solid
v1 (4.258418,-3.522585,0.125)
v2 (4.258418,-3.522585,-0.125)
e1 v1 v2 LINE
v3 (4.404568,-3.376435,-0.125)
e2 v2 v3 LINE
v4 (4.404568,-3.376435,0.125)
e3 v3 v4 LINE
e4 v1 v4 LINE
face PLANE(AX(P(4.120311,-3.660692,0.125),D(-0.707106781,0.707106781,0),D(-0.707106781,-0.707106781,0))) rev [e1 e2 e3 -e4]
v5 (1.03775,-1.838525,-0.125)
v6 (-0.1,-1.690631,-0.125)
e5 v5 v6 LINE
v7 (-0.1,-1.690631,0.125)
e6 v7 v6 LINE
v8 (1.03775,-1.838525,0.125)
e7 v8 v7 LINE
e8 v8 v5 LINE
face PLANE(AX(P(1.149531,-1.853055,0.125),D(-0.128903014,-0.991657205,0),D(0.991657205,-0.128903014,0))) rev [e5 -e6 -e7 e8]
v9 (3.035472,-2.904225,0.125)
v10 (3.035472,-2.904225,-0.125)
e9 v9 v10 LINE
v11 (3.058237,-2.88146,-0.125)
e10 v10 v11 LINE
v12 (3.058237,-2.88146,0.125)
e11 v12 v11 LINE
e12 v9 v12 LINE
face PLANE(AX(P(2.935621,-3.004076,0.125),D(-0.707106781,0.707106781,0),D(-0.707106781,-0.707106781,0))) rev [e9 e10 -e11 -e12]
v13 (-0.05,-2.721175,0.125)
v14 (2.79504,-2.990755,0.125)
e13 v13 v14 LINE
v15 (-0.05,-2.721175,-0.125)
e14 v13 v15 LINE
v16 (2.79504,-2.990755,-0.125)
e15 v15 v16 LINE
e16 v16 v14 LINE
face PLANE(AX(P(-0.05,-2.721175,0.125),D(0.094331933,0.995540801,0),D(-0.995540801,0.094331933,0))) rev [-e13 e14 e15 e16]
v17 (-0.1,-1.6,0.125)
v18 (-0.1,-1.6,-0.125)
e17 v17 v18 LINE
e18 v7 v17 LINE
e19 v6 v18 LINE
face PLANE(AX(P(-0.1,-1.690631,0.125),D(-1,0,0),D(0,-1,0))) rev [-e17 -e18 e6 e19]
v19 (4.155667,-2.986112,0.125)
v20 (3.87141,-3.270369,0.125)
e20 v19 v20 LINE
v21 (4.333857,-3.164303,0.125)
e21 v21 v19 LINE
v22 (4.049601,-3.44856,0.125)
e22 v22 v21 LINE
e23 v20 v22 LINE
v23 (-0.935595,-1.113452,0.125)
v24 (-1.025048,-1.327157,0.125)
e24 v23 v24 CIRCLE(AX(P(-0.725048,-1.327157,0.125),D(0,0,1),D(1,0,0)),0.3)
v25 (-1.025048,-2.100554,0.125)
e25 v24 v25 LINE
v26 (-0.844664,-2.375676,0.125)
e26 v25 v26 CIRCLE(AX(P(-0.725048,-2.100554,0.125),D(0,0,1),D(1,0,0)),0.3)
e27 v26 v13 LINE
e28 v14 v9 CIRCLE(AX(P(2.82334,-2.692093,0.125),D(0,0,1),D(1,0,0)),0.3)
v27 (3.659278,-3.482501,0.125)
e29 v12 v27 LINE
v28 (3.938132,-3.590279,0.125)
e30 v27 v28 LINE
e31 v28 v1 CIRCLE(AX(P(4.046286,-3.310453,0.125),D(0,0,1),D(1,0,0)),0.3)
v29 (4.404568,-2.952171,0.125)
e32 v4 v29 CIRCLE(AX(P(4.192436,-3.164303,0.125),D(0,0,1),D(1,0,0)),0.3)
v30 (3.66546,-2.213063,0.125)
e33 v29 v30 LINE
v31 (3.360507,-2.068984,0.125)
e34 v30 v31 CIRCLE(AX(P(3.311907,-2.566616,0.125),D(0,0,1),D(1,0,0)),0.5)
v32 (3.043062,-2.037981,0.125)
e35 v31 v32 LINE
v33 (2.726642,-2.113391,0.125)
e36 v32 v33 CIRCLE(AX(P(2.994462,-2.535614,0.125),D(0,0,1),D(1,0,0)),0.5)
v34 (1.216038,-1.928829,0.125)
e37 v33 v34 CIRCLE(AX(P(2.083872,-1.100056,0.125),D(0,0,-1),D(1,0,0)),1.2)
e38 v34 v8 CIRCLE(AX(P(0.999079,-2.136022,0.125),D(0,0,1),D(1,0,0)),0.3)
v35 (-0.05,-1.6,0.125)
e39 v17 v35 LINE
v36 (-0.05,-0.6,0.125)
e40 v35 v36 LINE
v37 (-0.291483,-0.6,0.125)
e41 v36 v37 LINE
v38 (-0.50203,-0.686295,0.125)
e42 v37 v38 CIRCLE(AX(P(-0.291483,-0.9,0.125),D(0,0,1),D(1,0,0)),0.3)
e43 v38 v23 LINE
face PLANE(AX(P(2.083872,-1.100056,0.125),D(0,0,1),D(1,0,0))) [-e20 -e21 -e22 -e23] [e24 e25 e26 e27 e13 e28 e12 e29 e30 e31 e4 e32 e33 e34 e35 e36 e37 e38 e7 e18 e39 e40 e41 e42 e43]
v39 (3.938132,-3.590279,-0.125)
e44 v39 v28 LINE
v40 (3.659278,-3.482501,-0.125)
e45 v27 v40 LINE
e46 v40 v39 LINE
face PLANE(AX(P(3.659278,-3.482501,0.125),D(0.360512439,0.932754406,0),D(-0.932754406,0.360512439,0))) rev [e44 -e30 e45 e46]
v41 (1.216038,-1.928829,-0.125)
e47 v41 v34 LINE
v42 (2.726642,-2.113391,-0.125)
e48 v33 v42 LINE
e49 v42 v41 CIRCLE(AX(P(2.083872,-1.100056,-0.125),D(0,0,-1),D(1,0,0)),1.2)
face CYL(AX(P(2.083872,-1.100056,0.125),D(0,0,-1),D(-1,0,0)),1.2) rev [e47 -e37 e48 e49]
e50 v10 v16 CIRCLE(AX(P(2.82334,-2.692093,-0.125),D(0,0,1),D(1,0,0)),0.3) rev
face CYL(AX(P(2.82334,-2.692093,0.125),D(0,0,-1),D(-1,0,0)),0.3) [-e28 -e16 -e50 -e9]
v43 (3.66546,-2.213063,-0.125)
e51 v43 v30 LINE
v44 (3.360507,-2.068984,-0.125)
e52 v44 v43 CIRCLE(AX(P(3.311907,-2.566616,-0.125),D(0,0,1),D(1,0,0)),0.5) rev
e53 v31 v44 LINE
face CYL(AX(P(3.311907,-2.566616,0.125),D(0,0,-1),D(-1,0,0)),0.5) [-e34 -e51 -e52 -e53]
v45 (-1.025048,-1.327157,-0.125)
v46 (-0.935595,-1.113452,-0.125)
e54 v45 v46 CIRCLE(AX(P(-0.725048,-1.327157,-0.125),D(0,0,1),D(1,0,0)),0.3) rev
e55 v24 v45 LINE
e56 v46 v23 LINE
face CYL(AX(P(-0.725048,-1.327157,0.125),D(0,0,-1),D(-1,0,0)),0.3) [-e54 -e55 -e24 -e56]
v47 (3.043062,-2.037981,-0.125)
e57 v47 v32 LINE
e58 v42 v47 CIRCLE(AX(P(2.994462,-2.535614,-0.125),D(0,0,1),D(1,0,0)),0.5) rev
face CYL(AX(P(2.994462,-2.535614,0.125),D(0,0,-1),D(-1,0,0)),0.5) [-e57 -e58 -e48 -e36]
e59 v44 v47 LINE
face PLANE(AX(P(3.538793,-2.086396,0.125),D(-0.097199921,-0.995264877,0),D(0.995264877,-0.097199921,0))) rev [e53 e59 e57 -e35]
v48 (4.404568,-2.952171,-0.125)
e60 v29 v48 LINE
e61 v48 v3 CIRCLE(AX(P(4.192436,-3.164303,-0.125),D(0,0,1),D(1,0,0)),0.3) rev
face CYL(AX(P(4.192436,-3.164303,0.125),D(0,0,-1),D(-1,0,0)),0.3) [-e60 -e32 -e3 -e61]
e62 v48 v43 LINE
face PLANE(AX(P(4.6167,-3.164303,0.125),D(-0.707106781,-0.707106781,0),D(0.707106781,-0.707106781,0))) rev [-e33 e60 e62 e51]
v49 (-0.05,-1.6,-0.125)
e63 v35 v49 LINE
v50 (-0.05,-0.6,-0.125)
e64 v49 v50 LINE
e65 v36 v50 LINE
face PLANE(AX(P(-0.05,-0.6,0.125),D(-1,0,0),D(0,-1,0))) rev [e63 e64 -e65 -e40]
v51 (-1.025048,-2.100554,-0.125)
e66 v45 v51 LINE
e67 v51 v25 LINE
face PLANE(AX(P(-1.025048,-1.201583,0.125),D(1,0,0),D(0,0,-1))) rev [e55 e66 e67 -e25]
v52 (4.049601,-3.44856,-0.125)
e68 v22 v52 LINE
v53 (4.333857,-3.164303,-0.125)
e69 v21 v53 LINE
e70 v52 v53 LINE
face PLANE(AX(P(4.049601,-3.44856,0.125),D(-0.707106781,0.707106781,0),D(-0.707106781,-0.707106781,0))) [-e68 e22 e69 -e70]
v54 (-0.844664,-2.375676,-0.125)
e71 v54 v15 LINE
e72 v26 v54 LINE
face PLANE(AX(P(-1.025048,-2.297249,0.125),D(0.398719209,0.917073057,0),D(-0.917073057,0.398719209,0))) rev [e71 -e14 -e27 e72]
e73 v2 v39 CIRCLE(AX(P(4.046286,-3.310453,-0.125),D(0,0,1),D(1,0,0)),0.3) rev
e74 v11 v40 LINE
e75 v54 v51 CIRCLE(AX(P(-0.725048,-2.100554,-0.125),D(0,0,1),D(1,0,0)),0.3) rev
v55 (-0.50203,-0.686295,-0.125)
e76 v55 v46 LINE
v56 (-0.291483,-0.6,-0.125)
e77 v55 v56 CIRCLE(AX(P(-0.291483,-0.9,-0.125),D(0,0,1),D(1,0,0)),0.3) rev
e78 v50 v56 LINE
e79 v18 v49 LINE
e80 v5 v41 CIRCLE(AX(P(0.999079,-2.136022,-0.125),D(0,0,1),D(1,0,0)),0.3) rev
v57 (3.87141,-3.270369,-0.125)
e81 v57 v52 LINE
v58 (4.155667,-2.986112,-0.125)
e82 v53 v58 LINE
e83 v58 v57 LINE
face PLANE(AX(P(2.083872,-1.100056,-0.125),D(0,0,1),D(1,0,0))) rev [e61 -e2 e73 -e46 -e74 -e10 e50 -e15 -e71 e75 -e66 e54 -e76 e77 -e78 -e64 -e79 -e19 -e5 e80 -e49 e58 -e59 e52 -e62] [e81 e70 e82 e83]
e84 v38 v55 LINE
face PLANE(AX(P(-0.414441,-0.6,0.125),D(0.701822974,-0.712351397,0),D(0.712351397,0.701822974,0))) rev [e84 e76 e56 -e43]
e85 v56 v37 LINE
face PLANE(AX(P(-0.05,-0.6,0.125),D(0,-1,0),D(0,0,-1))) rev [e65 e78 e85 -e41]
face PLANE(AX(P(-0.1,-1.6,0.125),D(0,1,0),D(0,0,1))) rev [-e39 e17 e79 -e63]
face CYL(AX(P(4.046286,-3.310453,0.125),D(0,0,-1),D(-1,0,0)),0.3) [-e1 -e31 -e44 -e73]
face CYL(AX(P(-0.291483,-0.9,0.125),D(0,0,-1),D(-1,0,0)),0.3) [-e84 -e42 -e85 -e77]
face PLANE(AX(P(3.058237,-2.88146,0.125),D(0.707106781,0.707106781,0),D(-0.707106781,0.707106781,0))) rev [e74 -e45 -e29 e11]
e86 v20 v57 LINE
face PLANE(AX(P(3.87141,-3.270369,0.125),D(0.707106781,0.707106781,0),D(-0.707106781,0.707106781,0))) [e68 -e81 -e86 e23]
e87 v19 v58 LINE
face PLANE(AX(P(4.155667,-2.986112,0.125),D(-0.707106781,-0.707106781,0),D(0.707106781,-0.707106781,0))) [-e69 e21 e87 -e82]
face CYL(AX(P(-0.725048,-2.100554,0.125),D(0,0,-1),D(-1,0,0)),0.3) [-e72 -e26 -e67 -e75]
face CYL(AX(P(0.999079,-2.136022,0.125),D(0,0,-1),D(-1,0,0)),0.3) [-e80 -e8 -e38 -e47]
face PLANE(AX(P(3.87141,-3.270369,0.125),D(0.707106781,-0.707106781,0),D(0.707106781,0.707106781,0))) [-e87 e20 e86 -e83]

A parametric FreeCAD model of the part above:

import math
import FreeCAD as App
import Part
import Sketcher
from FreeCAD import Vector
Q = App.Units.Quantity


def edges_at(feature, points):
    """Names of the edges that pass closest to the given points."""
    edges = feature.Shape.Edges
    near = lambda p: min(range(len(edges)), key=lambda i: edges[i].distToShape(Part.Vertex(*p))[0])
    return sorted({f"Edge{near(p) + 1}" for p in points})

doc = App.newDocument("Part")
body = doc.addObject("PartDesign::Body", "Body")

sketch1 = doc.addObject("Sketcher::SketchObject", "Sketch")
body.addObject(sketch1)
sketch1.AttachmentSupport = (doc.XY_Plane, [""])
sketch1.MapMode = "FlatFace"
sketch1.addGeometry(Part.LineSegment(Vector(-0.05, -1.6, 0), Vector(-0.05, -0.6, 0)), False)
sketch1.addGeometry(Part.LineSegment(Vector(-0.05, -0.6, 0), Vector(-0.41, -0.6, 0)), False)
sketch1.addGeometry(Part.LineSegment(Vector(-0.41, -0.6, 0), Vector(-1.03, -1.2, 0)), False)
sketch1.addGeometry(Part.LineSegment(Vector(-1.03, -1.2, 0), Vector(-1.03, -2.3, 0)), False)
sketch1.addGeometry(Part.LineSegment(Vector(-1.03, -2.3, 0), Vector(-0.05, -2.72, 0)), False)
sketch1.addGeometry(Part.LineSegment(Vector(-0.05, -2.72, 0), Vector(2.94, -3, 0)), False)
sketch1.addGeometry(Part.LineSegment(Vector(2.94, -3, 0), Vector(3.06, -2.88, 0)), False)
sketch1.addGeometry(Part.LineSegment(Vector(3.06, -2.88, 0), Vector(3.66, -3.48, 0)), False)
sketch1.addGeometry(Part.LineSegment(Vector(3.66, -3.48, 0), Vector(4.12, -3.66, 0)), False)
sketch1.addGeometry(Part.LineSegment(Vector(4.12, -3.66, 0), Vector(4.62, -3.16, 0)), False)
sketch1.addGeometry(Part.LineSegment(Vector(4.62, -3.16, 0), Vector(3.54, -2.09, 0)), False)
sketch1.addGeometry(Part.LineSegment(Vector(3.54, -2.09, 0), Vector(2.85, -2.02, 0)), False)
sketch1.addGeometry(Part.ArcOfCircle(Part.Circle(Vector(2.08, -1.1, 0), Vector(0, 0, 1), 1.2), math.radians(-141), math.radians(-50)), False)
sketch1.addGeometry(Part.LineSegment(Vector(1.15, -1.85, 0), Vector(-0.1, -1.69, 0)), False)
sketch1.addGeometry(Part.LineSegment(Vector(-0.1, -1.69, 0), Vector(-0.1, -1.6, 0)), False)
sketch1.addGeometry(Part.LineSegment(Vector(-0.1, -1.6, 0), Vector(-0.05, -1.6, 0)), False)
sketch1.addGeometry(Part.LineSegment(Vector(3.87, -3.27, 0), Vector(4.16, -2.99, 0)), False)
sketch1.addGeometry(Part.LineSegment(Vector(4.16, -2.99, 0), Vector(4.33, -3.16, 0)), False)
sketch1.addGeometry(Part.LineSegment(Vector(4.33, -3.16, 0), Vector(4.05, -3.45, 0)), False)
sketch1.addGeometry(Part.LineSegment(Vector(4.05, -3.45, 0), Vector(3.87, -3.27, 0)), False)
sketch1.addConstraint(Sketcher.Constraint("Coincident", 0, 2, 1, 1))
sketch1.addConstraint(Sketcher.Constraint("Coincident", 1, 2, 2, 1))
sketch1.addConstraint(Sketcher.Constraint("Coincident", 2, 2, 3, 1))
sketch1.addConstraint(Sketcher.Constraint("Coincident", 3, 2, 4, 1))
sketch1.addConstraint(Sketcher.Constraint("Coincident", 4, 2, 5, 1))
sketch1.addConstraint(Sketcher.Constraint("Coincident", 5, 2, 6, 1))
sketch1.addConstraint(Sketcher.Constraint("Coincident", 6, 2, 7, 1))
sketch1.addConstraint(Sketcher.Constraint("Coincident", 7, 2, 8, 1))
sketch1.addConstraint(Sketcher.Constraint("Coincident", 8, 2, 9, 1))
sketch1.addConstraint(Sketcher.Constraint("Coincident", 9, 2, 10, 1))
sketch1.addConstraint(Sketcher.Constraint("Coincident", 10, 2, 11, 1))
sketch1.addConstraint(Sketcher.Constraint("Coincident", 11, 2, 12, 2))
sketch1.addConstraint(Sketcher.Constraint("Coincident", 12, 1, 13, 1))
sketch1.addConstraint(Sketcher.Constraint("Coincident", 13, 2, 14, 1))
sketch1.addConstraint(Sketcher.Constraint("Coincident", 14, 2, 15, 1))
sketch1.addConstraint(Sketcher.Constraint("Coincident", 15, 2, 0, 1))
sketch1.addConstraint(Sketcher.Constraint("Coincident", 16, 2, 17, 1))
sketch1.addConstraint(Sketcher.Constraint("Coincident", 17, 2, 18, 1))
sketch1.addConstraint(Sketcher.Constraint("Coincident", 18, 2, 19, 1))
sketch1.addConstraint(Sketcher.Constraint("Coincident", 19, 2, 16, 1))
sketch1.addConstraint(Sketcher.Constraint("Vertical", 0))
sketch1.addConstraint(Sketcher.Constraint("Horizontal", 1))
sketch1.addConstraint(Sketcher.Constraint("Vertical", 3))
sketch1.addConstraint(Sketcher.Constraint("Vertical", 14))
sketch1.addConstraint(Sketcher.Constraint("Horizontal", 15))
sketch1.addConstraint(Sketcher.Constraint("Perpendicular", 6, 7))
sketch1.addConstraint(Sketcher.Constraint("Perpendicular", 7, 9))
sketch1.addConstraint(Sketcher.Constraint("Perpendicular", 9, 10))
sketch1.addConstraint(Sketcher.Constraint("Perpendicular", 10, 16))
sketch1.addConstraint(Sketcher.Constraint("Perpendicular", 16, 17))
sketch1.addConstraint(Sketcher.Constraint("Perpendicular", 17, 18))
sketch1.addConstraint(Sketcher.Constraint("Perpendicular", 18, 19))
sketch1.addConstraint(Sketcher.Constraint("Horizontal", 9, 2, 17, 2))
sketch1.addConstraint(Sketcher.Constraint("Vertical", 0, 2, 4, 2))
sketch1.addConstraint(Sketcher.Constraint("Radius", 12, Q("1.2 mm")))
sketch1.addConstraint(Sketcher.Constraint("DistanceY", 0, 1, 0, 2, Q("1 mm")))
sketch1.addConstraint(Sketcher.Constraint("Angle", 6, Q("45 deg")))
sketch1.addConstraint(Sketcher.Constraint("DistanceX", 15, 1, 15, 2, Q("0.05 mm")))
sketch1.addConstraint(Sketcher.Constraint("DistanceY", 0, 2, -1, 1, Q("0.6 mm")))
sketch1.addConstraint(Sketcher.Constraint("DistanceX", 13, 2, -1, 1, Q("0.1 mm")))
sketch1.addConstraint(Sketcher.Constraint("Distance", 7, Q("0.85 mm")))
sketch1.addConstraint(Sketcher.Constraint("Distance", 9, Q("0.702 mm")))
sketch1.addConstraint(Sketcher.Constraint("Distance", 16, Q("0.402 mm")))
sketch1.addConstraint(Sketcher.Constraint("Distance", 17, Q("0.252 mm")))
sketch1.addConstraint(Sketcher.Constraint("DistanceY", 12, 1, 12, 3, Q("0.752998 mm")))
sketch1.addConstraint(Sketcher.Constraint("DistanceX", 1, 2, 1, 1, Q("0.364441 mm")))
sketch1.addConstraint(Sketcher.Constraint("DistanceY", 14, 1, 14, 2, Q("0.090631 mm")))
sketch1.addConstraint(Sketcher.Constraint("DistanceY", 7, 2, -1, 1, Q("3.482501 mm")))
sketch1.addConstraint(Sketcher.Constraint("DistanceX", -1, 1, 9, 2, Q("4.6167 mm")))
sketch1.addConstraint(Sketcher.Constraint("DistanceX", -1, 1, 18, 2, Q("4.049601 mm")))
sketch1.addConstraint(Sketcher.Constraint("DistanceY", 5, 2, 4, 2, Q("0.282901 mm")))
sketch1.addConstraint(Sketcher.Constraint("DistanceY", 7, 2, 9, 2, Q("0.318198 mm")))
sketch1.addConstraint(Sketcher.Constraint("DistanceY", 7, 2, 11, 2, Q("1.462899 mm")))
sketch1.addConstraint(Sketcher.Constraint("Distance", 2, Q("0.857172 mm")))
sketch1.addConstraint(Sketcher.Constraint("Distance", 8, Q("0.494271 mm")))
sketch1.addConstraint(Sketcher.Constraint("Distance", 10, Q("1.524391 mm")))
sketch1.addConstraint(Sketcher.Constraint("Distance", 11, Q("0.687178 mm")))
sketch1.addConstraint(Sketcher.Constraint("DistanceY", 3, 2, 3, 1, Q("1.095667 mm")))
sketch1.addConstraint(Sketcher.Constraint("DistanceX", 2, 2, -1, 1, Q("1.025048 mm")))
sketch1.addConstraint(Sketcher.Constraint("DistanceX", -1, 1, 5, 2, Q("2.935621 mm")))
sketch1.addConstraint(Sketcher.Constraint("DistanceX", -1, 1, 12, 1, Q("1.149531 mm")))
pad1 = doc.addObject("PartDesign::Pad", "Pad")
body.addObject(pad1)
pad1.Profile = sketch1
pad1.Length = 0.25
pad1.Midplane = True
doc.recompute()

fillet = doc.addObject("PartDesign::Fillet", "Fillet")
body.addObject(fillet)
fillet.Base = (pad1, edges_at(pad1, [
    (-1.025, -1.202, 0),
    (-0.414, -0.6, 0),
    (1.15, -1.853, 0),
    (4.617, -3.164, 0),
    (4.12, -3.661, 0),
    (2.936, -3.004, 0),
    (-1.025, -2.297, 0),
]))
fillet.Radius = 0.3
doc.recompute()

fillet2 = doc.addObject("PartDesign::Fillet", "Fillet001")
body.addObject(fillet2)
fillet2.Base = (fillet, edges_at(fillet, [(2.855, -2.02, 0), (3.539, -2.086, 0)]))
fillet2.Radius = 0.5

doc.recompute()
